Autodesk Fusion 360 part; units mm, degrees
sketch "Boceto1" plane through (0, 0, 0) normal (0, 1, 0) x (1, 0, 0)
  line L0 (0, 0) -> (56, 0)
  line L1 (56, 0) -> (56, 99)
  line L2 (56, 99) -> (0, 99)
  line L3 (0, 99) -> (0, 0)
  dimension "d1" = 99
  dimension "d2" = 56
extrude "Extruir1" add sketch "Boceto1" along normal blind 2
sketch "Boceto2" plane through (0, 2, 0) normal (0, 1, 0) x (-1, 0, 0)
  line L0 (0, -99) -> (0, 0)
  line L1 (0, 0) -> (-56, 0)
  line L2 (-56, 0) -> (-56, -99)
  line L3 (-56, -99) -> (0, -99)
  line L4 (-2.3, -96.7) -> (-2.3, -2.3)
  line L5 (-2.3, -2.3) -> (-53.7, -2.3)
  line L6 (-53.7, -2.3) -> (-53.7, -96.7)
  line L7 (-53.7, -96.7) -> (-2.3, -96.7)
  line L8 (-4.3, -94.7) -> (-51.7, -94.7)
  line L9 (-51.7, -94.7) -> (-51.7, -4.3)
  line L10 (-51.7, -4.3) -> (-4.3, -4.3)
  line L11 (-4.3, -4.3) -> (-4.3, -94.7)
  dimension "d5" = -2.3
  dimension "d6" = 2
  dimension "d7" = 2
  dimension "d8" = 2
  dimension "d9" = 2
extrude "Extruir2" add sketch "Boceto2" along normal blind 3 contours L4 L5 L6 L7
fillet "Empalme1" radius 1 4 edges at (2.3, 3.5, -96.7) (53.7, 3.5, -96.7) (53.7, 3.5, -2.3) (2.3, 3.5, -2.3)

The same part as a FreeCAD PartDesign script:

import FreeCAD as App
import Part
import Sketcher
from FreeCAD import Vector
Q = App.Units.Quantity


def edges_at(feature, points):
    """Names of the edges that pass closest to the given points."""
    edges = feature.Shape.Edges
    near = lambda p: min(range(len(edges)), key=lambda i: edges[i].distToShape(Part.Vertex(*p))[0])
    return sorted({f"Edge{near(p) + 1}" for p in points})

doc = App.newDocument("Part")
params = doc.addObject("Spreadsheet::Sheet", "Params")
for row, (alias, value) in enumerate([
    ("sketch1_width", "56 mm"),
    ("sketch1_height", "99 mm"),
    ("pad1_length", "2 mm"),
    ("sketch2_width", "51.4 mm"),
    ("sketch2_height", "94.4 mm"),
    ("pad2_length", "3 mm"),
    ("fillet_radius", "1 mm"),
], start=1):
    params.set(f"A{row}", alias)
    params.set(f"B{row}", "=" + value)
    params.setAlias(f"B{row}", alias)

body = doc.addObject("PartDesign::Body", "Body")

sketch1 = doc.addObject("Sketcher::SketchObject", "Sketch")
body.addObject(sketch1)
sketch1.AttachmentSupport = (doc.XZ_Plane, [""])
sketch1.MapMode = "FlatFace"
sketch1.addGeometry(Part.LineSegment(Vector(0, -99, 0), Vector(0, 0, 0)), False)
sketch1.addGeometry(Part.LineSegment(Vector(0, 0, 0), Vector(56, 0, 0)), False)
sketch1.addGeometry(Part.LineSegment(Vector(56, 0, 0), Vector(56, -99, 0)), False)
sketch1.addGeometry(Part.LineSegment(Vector(56, -99, 0), Vector(0, -99, 0)), False)
sketch1.addConstraint(Sketcher.Constraint("Coincident", 0, 2, 1, 1))
sketch1.addConstraint(Sketcher.Constraint("Coincident", 1, 2, 2, 1))
sketch1.addConstraint(Sketcher.Constraint("Coincident", 2, 2, 3, 1))
sketch1.addConstraint(Sketcher.Constraint("Coincident", 3, 2, 0, 1))
sketch1.addConstraint(Sketcher.Constraint("Vertical", 0))
sketch1.addConstraint(Sketcher.Constraint("Horizontal", 1))
sketch1.addConstraint(Sketcher.Constraint("Vertical", 2))
sketch1.addConstraint(Sketcher.Constraint("Horizontal", 3))
sketch1.addConstraint(Sketcher.Constraint("Coincident", 0, 2, -1, 1))
sketch1.addConstraint(Sketcher.Constraint("DistanceX", 1, 1, 1, 2, Q("56 mm")))
sketch1.addConstraint(Sketcher.Constraint("DistanceY", 0, 1, 0, 2, Q("99 mm")))
sketch1.setExpression("Constraints[9]", "Params.sketch1_width")
sketch1.setExpression("Constraints[10]", "Params.sketch1_height")
pad1 = doc.addObject("PartDesign::Pad", "Pad")
body.addObject(pad1)
pad1.Profile = sketch1
pad1.setExpression("Length", "Params.pad1_length")
pad1.Reversed = True

sketch2 = doc.addObject("Sketcher::SketchObject", "Sketch001")
body.addObject(sketch2)
sketch2.AttachmentSupport = (doc.XZ_Plane, [""])
sketch2.MapMode = "FlatFace"
sketch2.AttachmentOffset = App.Placement(Vector(0, 0, -2), App.Rotation())
sketch2.addGeometry(Part.LineSegment(Vector(54, -97, 0), Vector(2, -97, 0)), False)
sketch2.addGeometry(Part.LineSegment(Vector(2, -97, 0), Vector(2, -2, 0)), False)
sketch2.addGeometry(Part.LineSegment(Vector(2, -2, 0), Vector(54, -2, 0)), False)
sketch2.addGeometry(Part.LineSegment(Vector(54, -2, 0), Vector(54, -97, 0)), False)
sketch2.addGeometry(Part.LineSegment(Vector(4, -4, 0), Vector(4, -95, 0)), False)
sketch2.addGeometry(Part.LineSegment(Vector(4, -95, 0), Vector(52, -95, 0)), False)
sketch2.addGeometry(Part.LineSegment(Vector(52, -95, 0), Vector(52, -4, 0)), False)
sketch2.addGeometry(Part.LineSegment(Vector(52, -4, 0), Vector(4, -4, 0)), False)
sketch2.addConstraint(Sketcher.Constraint("Coincident", 0, 2, 1, 1))
sketch2.addConstraint(Sketcher.Constraint("Coincident", 1, 2, 2, 1))
sketch2.addConstraint(Sketcher.Constraint("Coincident", 2, 2, 3, 1))
sketch2.addConstraint(Sketcher.Constraint("Coincident", 3, 2, 0, 1))
sketch2.addConstraint(Sketcher.Constraint("Coincident", 4, 2, 5, 1))
sketch2.addConstraint(Sketcher.Constraint("Coincident", 5, 2, 6, 1))
sketch2.addConstraint(Sketcher.Constraint("Coincident", 6, 2, 7, 1))
sketch2.addConstraint(Sketcher.Constraint("Coincident", 7, 2, 4, 1))
sketch2.addConstraint(Sketcher.Constraint("Horizontal", 0))
sketch2.addConstraint(Sketcher.Constraint("Vertical", 1))
sketch2.addConstraint(Sketcher.Constraint("Horizontal", 2))
sketch2.addConstraint(Sketcher.Constraint("Vertical", 3))
sketch2.addConstraint(Sketcher.Constraint("Vertical", 4))
sketch2.addConstraint(Sketcher.Constraint("Horizontal", 5))
sketch2.addConstraint(Sketcher.Constraint("Vertical", 6))
sketch2.addConstraint(Sketcher.Constraint("Horizontal", 7))
sketch2.addConstraint(Sketcher.Constraint("DistanceX", 0, 2, 4, 2, Q("2 mm")))
sketch2.addConstraint(Sketcher.Constraint("DistanceY", 0, 2, 4, 2, Q("2 mm")))
sketch2.addConstraint(Sketcher.Constraint("DistanceX", 5, 2, 3, 2, Q("2 mm")))
sketch2.addConstraint(Sketcher.Constraint("DistanceY", 6, 2, 2, 2, Q("2 mm")))
sketch2.addConstraint(Sketcher.Constraint("DistanceX", -1, 1, 0, 2, Q("2.3 mm")))
sketch2.addConstraint(Sketcher.Constraint("DistanceY", 1, 2, -1, 1, Q("2.3 mm")))
sketch2.addConstraint(Sketcher.Constraint("DistanceX", 0, 2, 0, 1, Q("51.4 mm")))
sketch2.addConstraint(Sketcher.Constraint("DistanceY", 1, 1, 1, 2, Q("94.4 mm")))
sketch2.setExpression("Constraints[22]", "Params.sketch2_width")
sketch2.setExpression("Constraints[23]", "Params.sketch2_height")
pad2 = doc.addObject("PartDesign::Pad", "Pad001")
body.addObject(pad2)
pad2.Profile = sketch2
pad2.setExpression("Length", "Params.pad2_length")
pad2.Reversed = True
doc.recompute()

fillet = doc.addObject("PartDesign::Fillet", "Fillet")
body.addObject(fillet)
fillet.Base = (pad2, edges_at(pad2, [
    (2.3, 3.5, -96.7),
    (53.7, 3.5, -96.7),
    (53.7, 3.5, -2.3),
    (2.3, 3.5, -2.3),
]))
fillet.setExpression("Radius", "Params.fillet_radius")

doc.recompute()
